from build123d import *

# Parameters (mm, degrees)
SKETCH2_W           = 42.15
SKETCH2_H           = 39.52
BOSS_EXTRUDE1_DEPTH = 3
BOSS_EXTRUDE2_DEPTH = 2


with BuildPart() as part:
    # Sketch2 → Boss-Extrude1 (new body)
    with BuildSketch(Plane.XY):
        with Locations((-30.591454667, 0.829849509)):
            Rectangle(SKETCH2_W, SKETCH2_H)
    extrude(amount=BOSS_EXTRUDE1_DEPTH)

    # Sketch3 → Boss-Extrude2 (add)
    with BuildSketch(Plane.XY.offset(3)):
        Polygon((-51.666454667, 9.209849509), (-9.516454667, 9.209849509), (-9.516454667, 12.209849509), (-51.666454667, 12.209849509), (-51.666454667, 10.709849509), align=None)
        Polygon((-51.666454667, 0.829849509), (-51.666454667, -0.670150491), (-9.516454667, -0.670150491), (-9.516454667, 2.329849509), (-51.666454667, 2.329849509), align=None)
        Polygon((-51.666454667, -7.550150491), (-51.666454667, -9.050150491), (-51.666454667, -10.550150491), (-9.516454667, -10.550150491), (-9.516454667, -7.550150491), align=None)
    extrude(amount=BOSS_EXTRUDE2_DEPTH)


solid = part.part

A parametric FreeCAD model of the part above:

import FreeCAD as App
import Part
import Sketcher
from FreeCAD import Vector

doc = App.newDocument("Part")
body = doc.addObject("PartDesign::Body", "Body")

# Sketch on XY plane
sketch1 = body.newObject("Sketcher::SketchObject", "Sketch")
sketch1.AttachmentSupport = (doc.getObject("XY_Plane"), [""])
sketch1.MapMode = "FlatFace"
sketch1.addGeometry([
    Part.LineSegment(Vector(-51.666455, 20.58985, 0), Vector(-51.666455, -18.93015, 0)),
    Part.LineSegment(Vector(-51.666455, -18.93015, 0), Vector(-9.516455, -18.93015, 0)),
    Part.LineSegment(Vector(-9.516455, -18.93015, 0), Vector(-9.516455, 20.58985, 0)),
    Part.LineSegment(Vector(-9.516455, 20.58985, 0), Vector(-51.666455, 20.58985, 0)),
], False)
sketch1.addConstraint([
    Sketcher.Constraint("Coincident", 0, 2, 1, 1),
    Sketcher.Constraint("Coincident", 1, 2, 2, 1),
    Sketcher.Constraint("Coincident", 2, 2, 3, 1),
    Sketcher.Constraint("Coincident", 3, 2, 0, 1),
    Sketcher.Constraint("Vertical", 0),
    Sketcher.Constraint("Horizontal", 1),
    Sketcher.Constraint("Vertical", 2),
    Sketcher.Constraint("Horizontal", 3),
    Sketcher.Constraint("DistanceX", 1, 1, 1, 2, 42.15),
    Sketcher.Constraint("DistanceY", 0, 2, 0, 1, 39.52),
    Sketcher.Constraint("DistanceY", 0, 2, -1, 1, 18.93015),
    Sketcher.Constraint("DistanceX", 0, 2, -1, 1, 51.666455),
])
pad1 = body.newObject("PartDesign::Pad", "Pad")
pad1.Profile = sketch1
pad1.Length = 3

# Sketch on XY plane
sketch2 = body.newObject("Sketcher::SketchObject", "Sketch001")
sketch2.AttachmentSupport = (doc.getObject("XY_Plane"), [""])
sketch2.MapMode = "FlatFace"
sketch2.AttachmentOffset = App.Placement(Vector(0, 0, 3), App.Rotation())
sketch2.addGeometry([
    Part.LineSegment(Vector(-51.666455, 9.20985, 0), Vector(-9.516455, 9.20985, 0)),  # 0
    Part.LineSegment(Vector(-9.516455, 9.20985, 0), Vector(-9.516455, 12.20985, 0)),  # 1
    Part.LineSegment(Vector(-9.516455, 12.20985, 0), Vector(-51.666455, 12.20985, 0)),  # 2
    Part.LineSegment(Vector(-51.666455, 12.20985, 0), Vector(-51.666455, 9.20985, 0)),  # 3
    Part.LineSegment(Vector(-51.666455, -0.67015, 0), Vector(-9.516455, -0.67015, 0)),  # 4
    Part.LineSegment(Vector(-9.516455, -0.67015, 0), Vector(-9.516455, 2.32985, 0)),  # 5
    Part.LineSegment(Vector(-9.516455, 2.32985, 0), Vector(-51.666455, 2.32985, 0)),  # 6
    Part.LineSegment(Vector(-51.666455, 2.32985, 0), Vector(-51.666455, -0.67015, 0)),  # 7
    Part.LineSegment(Vector(-51.666455, -7.55015, 0), Vector(-51.666455, -10.55015, 0)),  # 8
    Part.LineSegment(Vector(-51.666455, -10.55015, 0), Vector(-9.516455, -10.55015, 0)),  # 9
    Part.LineSegment(Vector(-9.516455, -10.55015, 0), Vector(-9.516455, -7.55015, 0)),  # 10
    Part.LineSegment(Vector(-9.516455, -7.55015, 0), Vector(-51.666455, -7.55015, 0)),  # 11
], False)
sketch2.addConstraint([
    Sketcher.Constraint("Coincident", 0, 2, 1, 1),
    Sketcher.Constraint("Coincident", 1, 2, 2, 1),
    Sketcher.Constraint("Coincident", 2, 2, 3, 1),
    Sketcher.Constraint("Coincident", 3, 2, 0, 1),
    Sketcher.Constraint("Coincident", 4, 2, 5, 1),
    Sketcher.Constraint("Coincident", 5, 2, 6, 1),
    Sketcher.Constraint("Coincident", 6, 2, 7, 1),
    Sketcher.Constraint("Coincident", 7, 2, 4, 1),
    Sketcher.Constraint("Coincident", 8, 2, 9, 1),
    Sketcher.Constraint("Coincident", 9, 2, 10, 1),
    Sketcher.Constraint("Coincident", 10, 2, 11, 1),
    Sketcher.Constraint("Coincident", 11, 2, 8, 1),
    Sketcher.Constraint("Horizontal", 0),
    Sketcher.Constraint("Vertical", 1),
    Sketcher.Constraint("Horizontal", 2),
    Sketcher.Constraint("Vertical", 3),
    Sketcher.Constraint("Horizontal", 4),
    Sketcher.Constraint("Vertical", 5),
    Sketcher.Constraint("Horizontal", 6),
    Sketcher.Constraint("Vertical", 7),
    Sketcher.Constraint("Vertical", 8),
    Sketcher.Constraint("Horizontal", 9),
    Sketcher.Constraint("Vertical", 10),
    Sketcher.Constraint("Horizontal", 11),
    Sketcher.Constraint("Vertical", 1, 2, 4, 2),
    Sketcher.Constraint("Vertical", 3, 2, 6, 2),
    Sketcher.Constraint("Vertical", 7, 2, 8, 2),
    Sketcher.Constraint("Vertical", 5, 2, 9, 2),
    Sketcher.Constraint("Equal", 3, 5),
    Sketcher.Constraint("Equal", 7, 8),
    Sketcher.Constraint("DistanceY", 1, 1, 1, 2, 3.0),
    Sketcher.Constraint("DistanceX", 0, 1, 0, 2, 42.15),
    Sketcher.Constraint("DistanceY", 4, 2, 0, 2, 9.88),
    Sketcher.Constraint("DistanceY", 8, 2, 7, 2, 9.88),
    Sketcher.Constraint("DistanceY", -1, 1, 0, 2, 9.20985),
    Sketcher.Constraint("DistanceX", 0, 2, -1, 1, 9.516455),
])
pad2 = body.newObject("PartDesign::Pad", "Pad001")
pad2.Profile = sketch2
pad2.Length = 2

doc.recompute()
